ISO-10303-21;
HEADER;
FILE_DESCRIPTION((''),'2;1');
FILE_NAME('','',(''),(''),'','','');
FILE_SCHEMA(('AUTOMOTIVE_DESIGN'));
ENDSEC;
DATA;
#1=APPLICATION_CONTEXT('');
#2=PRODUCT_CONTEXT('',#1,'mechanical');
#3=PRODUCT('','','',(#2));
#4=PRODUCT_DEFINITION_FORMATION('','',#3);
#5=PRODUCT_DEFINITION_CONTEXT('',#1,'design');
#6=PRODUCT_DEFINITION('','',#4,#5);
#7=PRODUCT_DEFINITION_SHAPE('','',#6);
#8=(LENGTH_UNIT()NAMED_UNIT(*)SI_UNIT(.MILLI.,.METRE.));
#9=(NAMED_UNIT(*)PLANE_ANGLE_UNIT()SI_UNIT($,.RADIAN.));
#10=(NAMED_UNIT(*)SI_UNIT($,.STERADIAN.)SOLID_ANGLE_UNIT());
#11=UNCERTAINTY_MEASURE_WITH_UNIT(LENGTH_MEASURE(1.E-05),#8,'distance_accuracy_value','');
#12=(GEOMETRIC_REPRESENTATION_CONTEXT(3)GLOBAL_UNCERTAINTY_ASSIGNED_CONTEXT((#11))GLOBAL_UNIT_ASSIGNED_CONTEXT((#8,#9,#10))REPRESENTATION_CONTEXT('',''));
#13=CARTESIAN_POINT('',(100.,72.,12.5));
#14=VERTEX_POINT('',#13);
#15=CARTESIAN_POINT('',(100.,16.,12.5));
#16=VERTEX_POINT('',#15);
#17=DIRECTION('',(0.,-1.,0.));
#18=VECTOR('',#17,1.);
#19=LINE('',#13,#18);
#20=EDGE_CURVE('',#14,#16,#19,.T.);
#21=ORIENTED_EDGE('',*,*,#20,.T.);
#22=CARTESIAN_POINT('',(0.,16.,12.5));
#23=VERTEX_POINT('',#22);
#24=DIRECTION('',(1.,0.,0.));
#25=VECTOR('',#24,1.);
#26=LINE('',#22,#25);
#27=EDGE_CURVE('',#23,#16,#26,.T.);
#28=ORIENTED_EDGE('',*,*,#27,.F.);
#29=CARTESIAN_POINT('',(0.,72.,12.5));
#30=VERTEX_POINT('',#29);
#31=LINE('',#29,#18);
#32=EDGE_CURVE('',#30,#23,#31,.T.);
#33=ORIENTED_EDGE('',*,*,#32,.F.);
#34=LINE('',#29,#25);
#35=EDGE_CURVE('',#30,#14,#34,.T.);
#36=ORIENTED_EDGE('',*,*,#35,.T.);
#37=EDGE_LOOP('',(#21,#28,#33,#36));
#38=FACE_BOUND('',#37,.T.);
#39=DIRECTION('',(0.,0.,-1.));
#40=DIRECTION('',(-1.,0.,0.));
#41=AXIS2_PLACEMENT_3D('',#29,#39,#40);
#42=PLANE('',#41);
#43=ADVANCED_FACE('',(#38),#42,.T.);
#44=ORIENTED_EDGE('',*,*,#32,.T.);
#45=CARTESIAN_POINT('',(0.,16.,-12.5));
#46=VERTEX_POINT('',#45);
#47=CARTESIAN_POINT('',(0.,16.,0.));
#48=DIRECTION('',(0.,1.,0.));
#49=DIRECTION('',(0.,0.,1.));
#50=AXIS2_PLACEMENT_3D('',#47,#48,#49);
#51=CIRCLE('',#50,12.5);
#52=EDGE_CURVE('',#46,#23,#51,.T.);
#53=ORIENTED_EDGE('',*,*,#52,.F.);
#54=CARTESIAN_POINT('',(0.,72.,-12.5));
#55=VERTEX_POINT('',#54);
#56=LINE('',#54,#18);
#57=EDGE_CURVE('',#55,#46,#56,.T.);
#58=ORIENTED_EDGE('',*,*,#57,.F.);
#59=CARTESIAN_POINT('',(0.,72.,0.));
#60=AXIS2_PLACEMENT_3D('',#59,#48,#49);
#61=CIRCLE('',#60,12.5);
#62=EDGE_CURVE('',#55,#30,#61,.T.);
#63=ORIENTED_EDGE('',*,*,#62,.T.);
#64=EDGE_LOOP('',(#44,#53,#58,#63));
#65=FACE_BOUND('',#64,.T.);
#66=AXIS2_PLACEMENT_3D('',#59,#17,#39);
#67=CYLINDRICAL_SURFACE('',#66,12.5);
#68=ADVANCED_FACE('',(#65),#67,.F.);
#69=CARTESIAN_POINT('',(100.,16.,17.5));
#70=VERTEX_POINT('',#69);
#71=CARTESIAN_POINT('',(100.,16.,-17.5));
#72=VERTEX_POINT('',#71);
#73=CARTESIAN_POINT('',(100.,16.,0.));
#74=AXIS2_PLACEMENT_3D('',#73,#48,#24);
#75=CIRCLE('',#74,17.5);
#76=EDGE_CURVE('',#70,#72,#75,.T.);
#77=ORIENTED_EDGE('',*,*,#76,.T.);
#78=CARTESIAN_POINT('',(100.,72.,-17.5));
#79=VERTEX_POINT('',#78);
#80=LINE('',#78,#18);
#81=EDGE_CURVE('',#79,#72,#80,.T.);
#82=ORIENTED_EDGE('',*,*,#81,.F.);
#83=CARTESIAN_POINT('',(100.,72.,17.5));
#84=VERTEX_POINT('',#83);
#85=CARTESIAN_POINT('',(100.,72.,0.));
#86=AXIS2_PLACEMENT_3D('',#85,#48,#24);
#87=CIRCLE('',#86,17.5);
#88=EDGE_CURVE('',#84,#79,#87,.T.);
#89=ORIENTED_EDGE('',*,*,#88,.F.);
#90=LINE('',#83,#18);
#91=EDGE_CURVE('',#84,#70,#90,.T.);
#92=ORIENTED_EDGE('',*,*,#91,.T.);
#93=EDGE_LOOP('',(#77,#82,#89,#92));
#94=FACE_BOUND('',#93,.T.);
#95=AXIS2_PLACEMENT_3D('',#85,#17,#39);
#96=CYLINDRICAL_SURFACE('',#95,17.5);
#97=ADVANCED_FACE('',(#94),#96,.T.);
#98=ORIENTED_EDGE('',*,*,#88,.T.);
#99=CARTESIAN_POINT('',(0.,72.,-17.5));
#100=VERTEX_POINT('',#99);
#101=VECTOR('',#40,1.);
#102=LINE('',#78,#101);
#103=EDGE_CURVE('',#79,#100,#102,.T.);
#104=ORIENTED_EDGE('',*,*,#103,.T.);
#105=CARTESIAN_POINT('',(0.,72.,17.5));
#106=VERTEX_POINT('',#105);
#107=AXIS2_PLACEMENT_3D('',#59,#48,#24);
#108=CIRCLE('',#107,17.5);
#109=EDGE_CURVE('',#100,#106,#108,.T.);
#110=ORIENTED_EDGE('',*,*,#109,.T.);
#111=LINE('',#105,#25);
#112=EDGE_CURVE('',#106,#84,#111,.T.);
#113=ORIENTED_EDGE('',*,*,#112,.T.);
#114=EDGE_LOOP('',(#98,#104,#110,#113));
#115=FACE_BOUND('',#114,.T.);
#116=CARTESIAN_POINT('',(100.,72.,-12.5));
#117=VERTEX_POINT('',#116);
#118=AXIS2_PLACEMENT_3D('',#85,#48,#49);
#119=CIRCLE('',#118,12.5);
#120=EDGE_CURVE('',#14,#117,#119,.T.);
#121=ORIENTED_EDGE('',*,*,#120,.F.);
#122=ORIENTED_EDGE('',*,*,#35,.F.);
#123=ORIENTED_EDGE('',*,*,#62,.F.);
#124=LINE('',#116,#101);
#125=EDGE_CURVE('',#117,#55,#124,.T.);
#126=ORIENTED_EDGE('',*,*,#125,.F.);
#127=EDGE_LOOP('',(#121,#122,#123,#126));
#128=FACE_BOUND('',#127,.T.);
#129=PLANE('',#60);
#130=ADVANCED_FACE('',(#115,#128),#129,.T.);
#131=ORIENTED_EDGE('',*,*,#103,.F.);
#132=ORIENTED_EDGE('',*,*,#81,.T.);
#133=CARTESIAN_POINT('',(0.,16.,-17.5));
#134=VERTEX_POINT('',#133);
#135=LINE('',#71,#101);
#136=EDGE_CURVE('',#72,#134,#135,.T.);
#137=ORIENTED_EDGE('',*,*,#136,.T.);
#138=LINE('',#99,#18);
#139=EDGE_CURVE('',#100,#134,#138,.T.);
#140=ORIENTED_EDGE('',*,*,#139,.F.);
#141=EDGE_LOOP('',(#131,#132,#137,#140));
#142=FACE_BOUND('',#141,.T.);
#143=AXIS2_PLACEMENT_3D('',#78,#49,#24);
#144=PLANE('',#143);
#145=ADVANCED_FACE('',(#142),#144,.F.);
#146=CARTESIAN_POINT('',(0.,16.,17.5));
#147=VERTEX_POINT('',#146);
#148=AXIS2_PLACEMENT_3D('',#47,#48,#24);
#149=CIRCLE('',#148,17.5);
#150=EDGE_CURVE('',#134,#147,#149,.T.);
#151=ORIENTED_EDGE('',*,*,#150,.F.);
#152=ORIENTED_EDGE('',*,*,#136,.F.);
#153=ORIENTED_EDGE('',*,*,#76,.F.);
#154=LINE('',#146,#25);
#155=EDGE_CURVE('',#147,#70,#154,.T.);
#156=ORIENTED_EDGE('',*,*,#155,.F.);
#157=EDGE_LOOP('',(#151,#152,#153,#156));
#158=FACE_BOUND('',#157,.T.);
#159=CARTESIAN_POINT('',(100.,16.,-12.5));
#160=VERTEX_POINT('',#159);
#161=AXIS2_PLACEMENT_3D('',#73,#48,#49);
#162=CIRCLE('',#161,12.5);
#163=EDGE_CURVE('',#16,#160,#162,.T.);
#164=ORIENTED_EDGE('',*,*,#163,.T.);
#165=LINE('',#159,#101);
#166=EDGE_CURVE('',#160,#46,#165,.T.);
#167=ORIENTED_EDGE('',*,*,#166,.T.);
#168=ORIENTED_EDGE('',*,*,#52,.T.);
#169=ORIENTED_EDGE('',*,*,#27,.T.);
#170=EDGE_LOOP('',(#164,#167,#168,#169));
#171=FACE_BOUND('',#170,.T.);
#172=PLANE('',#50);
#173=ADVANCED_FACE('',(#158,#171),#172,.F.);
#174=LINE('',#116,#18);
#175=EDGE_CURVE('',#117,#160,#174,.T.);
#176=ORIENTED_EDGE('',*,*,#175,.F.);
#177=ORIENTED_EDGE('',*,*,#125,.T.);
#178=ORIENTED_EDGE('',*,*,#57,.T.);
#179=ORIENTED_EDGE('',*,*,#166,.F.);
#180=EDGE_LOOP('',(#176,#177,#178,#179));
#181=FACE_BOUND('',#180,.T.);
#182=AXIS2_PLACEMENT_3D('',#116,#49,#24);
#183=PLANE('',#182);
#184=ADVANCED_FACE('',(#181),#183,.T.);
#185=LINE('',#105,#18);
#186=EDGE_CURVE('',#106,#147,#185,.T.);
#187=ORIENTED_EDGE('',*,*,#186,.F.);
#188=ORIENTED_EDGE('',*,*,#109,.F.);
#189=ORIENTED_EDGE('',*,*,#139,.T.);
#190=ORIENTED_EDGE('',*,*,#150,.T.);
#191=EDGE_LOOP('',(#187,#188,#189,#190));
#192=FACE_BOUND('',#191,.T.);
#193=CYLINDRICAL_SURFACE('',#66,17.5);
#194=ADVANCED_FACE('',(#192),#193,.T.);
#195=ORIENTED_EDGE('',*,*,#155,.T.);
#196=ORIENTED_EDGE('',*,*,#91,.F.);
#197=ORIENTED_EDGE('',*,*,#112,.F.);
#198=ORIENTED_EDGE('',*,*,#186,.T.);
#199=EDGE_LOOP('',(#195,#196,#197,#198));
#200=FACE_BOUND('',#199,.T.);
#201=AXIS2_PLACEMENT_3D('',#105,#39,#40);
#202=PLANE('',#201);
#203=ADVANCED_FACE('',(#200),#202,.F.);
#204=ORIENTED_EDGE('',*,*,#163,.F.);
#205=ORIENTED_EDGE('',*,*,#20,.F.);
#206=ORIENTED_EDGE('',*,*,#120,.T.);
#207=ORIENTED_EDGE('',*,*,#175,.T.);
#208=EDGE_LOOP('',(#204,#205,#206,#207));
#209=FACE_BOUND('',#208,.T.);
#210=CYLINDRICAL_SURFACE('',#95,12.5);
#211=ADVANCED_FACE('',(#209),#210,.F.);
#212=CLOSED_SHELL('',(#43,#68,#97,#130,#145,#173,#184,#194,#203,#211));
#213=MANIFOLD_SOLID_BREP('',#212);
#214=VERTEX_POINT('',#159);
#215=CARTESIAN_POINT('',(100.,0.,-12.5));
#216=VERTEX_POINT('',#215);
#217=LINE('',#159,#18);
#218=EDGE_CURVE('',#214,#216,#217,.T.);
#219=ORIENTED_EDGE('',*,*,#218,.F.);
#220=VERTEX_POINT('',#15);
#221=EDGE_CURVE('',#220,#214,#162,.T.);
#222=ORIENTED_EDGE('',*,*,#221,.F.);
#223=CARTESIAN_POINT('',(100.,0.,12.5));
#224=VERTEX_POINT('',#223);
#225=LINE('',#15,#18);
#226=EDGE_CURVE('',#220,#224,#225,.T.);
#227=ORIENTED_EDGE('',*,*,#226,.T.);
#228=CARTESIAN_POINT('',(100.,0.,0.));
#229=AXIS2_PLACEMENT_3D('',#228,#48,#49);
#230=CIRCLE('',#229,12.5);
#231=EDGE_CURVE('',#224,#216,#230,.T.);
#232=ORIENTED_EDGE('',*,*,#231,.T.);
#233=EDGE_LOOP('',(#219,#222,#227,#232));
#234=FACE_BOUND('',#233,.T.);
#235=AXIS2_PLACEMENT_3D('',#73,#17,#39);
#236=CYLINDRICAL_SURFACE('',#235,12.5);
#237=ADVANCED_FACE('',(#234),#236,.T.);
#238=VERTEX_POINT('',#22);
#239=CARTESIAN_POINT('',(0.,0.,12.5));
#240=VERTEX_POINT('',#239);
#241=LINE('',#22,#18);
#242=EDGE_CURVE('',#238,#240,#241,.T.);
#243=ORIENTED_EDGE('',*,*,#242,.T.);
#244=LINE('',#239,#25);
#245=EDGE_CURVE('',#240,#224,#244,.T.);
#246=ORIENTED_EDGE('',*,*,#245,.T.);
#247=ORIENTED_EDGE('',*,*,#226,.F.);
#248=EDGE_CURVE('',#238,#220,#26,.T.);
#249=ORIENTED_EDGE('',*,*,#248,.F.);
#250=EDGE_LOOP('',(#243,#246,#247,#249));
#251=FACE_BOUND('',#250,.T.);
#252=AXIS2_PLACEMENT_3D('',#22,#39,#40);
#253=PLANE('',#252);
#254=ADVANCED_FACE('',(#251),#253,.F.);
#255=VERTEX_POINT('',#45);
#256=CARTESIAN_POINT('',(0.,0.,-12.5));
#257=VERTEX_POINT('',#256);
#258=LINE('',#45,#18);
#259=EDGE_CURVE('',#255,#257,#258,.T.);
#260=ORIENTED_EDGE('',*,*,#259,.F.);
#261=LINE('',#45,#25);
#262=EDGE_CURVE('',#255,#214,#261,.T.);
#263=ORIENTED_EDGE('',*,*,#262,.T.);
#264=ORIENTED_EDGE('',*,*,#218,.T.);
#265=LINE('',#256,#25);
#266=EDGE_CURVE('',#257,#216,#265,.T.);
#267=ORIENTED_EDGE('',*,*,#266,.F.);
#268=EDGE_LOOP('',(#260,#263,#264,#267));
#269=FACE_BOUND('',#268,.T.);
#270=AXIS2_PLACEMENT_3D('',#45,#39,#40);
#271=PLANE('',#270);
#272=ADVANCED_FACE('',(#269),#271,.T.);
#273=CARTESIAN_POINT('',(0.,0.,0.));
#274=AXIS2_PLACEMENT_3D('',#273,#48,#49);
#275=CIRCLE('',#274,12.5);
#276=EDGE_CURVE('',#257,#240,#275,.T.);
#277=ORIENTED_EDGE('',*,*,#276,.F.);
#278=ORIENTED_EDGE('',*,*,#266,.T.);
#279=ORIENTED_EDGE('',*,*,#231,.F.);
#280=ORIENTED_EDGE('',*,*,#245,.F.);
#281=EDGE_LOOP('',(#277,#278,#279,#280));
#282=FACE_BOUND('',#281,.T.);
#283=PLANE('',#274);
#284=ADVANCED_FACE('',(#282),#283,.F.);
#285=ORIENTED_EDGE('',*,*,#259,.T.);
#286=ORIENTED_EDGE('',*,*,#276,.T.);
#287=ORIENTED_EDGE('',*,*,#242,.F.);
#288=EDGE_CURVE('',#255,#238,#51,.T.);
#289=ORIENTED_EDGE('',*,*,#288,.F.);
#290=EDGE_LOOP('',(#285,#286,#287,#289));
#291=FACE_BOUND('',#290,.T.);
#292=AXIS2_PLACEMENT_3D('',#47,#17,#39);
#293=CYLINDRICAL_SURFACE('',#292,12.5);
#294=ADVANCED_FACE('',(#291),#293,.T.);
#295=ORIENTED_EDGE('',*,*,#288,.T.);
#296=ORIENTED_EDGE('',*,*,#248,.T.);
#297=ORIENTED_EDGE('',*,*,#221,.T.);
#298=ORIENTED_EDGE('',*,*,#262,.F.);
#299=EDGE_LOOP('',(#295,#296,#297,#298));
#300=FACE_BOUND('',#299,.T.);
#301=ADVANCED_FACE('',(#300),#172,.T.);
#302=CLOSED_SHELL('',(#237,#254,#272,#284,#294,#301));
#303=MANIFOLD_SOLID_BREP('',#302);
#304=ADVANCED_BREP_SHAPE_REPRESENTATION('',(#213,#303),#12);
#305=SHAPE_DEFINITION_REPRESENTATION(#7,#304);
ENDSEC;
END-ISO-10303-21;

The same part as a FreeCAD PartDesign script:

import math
import FreeCAD as App
import Part
import Sketcher

doc = App.newDocument("Part")
body = doc.addObject("PartDesign::Body", "Body")

# Sketch on XZ plane
sketch1 = doc.addObject("Sketcher::SketchObject", "Sketch")
body.addObject(sketch1)
sketch1.AttachmentSupport = (doc.XZ_Plane, [""])
sketch1.MapMode = "FlatFace"
sketch1.addGeometry(Part.LineSegment(App.Vector(100, -12, 0), App.Vector(0, -12, 0)), False)
sketch1.addGeometry(Part.ArcOfCircle(Part.Circle(App.Vector(0, 0, 0), App.Vector(0, 0, 1), 12), math.radians(90), math.radians(270)), False)
sketch1.addGeometry(Part.LineSegment(App.Vector(0, 12, 0), App.Vector(100, 12, 0)), False)
sketch1.addGeometry(Part.ArcOfCircle(Part.Circle(App.Vector(100, 0, 0), App.Vector(0, 0, 1), 12), math.radians(-90), math.radians(90)), False)
sketch1.addConstraint(Sketcher.Constraint("Tangent", 0, 2, 1, 2))
sketch1.addConstraint(Sketcher.Constraint("Tangent", 1, 1, 2, 1))
sketch1.addConstraint(Sketcher.Constraint("Tangent", 2, 2, 3, 2))
sketch1.addConstraint(Sketcher.Constraint("Tangent", 3, 1, 0, 1))
sketch1.addConstraint(Sketcher.Constraint("Horizontal", 0))
sketch1.addConstraint(Sketcher.Constraint("Horizontal", 2))
sketch1.addConstraint(Sketcher.Constraint("Coincident", 1, 3, -1, 1))
sketch1.addConstraint(Sketcher.Constraint("Radius", 1, 12.5))
sketch1.addConstraint(Sketcher.Constraint("DistanceX", 0, 2, 0, 1, 100.0))
pad1 = doc.addObject("PartDesign::Pad", "Pad")
body.addObject(pad1)
pad1.Profile = sketch1
pad1.Length = 16
pad1.Reversed = True
body2 = doc.addObject("PartDesign::Body", "Body001")

# Sketch on XZ plane
sketch2 = doc.addObject("Sketcher::SketchObject", "Sketch001")
body2.addObject(sketch2)
sketch2.AttachmentSupport = (doc.getObject("XZ_Plane001"), [""])
sketch2.MapMode = "FlatFace"
sketch2.AttachmentOffset = App.Placement(App.Vector(0, 0, -16), App.Rotation())
sketch2.addGeometry(Part.LineSegment(App.Vector(100, -18, 0), App.Vector(0, -18, 0)), False)
sketch2.addGeometry(Part.ArcOfCircle(Part.Circle(App.Vector(0, 0, 0), App.Vector(0, 0, 1), 18), math.radians(90), math.radians(270)), False)
sketch2.addGeometry(Part.LineSegment(App.Vector(0, 18, 0), App.Vector(100, 18, 0)), False)
sketch2.addGeometry(Part.ArcOfCircle(Part.Circle(App.Vector(100, 0, 0), App.Vector(0, 0, 1), 18), math.radians(-90), math.radians(90)), False)
sketch2.addGeometry(Part.LineSegment(App.Vector(0, -12, 0), App.Vector(100, -12, 0)), False)
sketch2.addGeometry(Part.ArcOfCircle(Part.Circle(App.Vector(100, 0, 0), App.Vector(0, 0, 1), 12), math.radians(-90), math.radians(90)), False)
sketch2.addGeometry(Part.LineSegment(App.Vector(100, 12, 0), App.Vector(0, 12, 0)), False)
sketch2.addGeometry(Part.ArcOfCircle(Part.Circle(App.Vector(0, 0, 0), App.Vector(0, 0, 1), 12), math.radians(90), math.radians(270)), False)
sketch2.addConstraint(Sketcher.Constraint("Tangent", 0, 2, 1, 2))
sketch2.addConstraint(Sketcher.Constraint("Tangent", 1, 1, 2, 1))
sketch2.addConstraint(Sketcher.Constraint("Tangent", 2, 2, 3, 2))
sketch2.addConstraint(Sketcher.Constraint("Tangent", 3, 1, 0, 1))
sketch2.addConstraint(Sketcher.Constraint("Tangent", 4, 2, 5, 1))
sketch2.addConstraint(Sketcher.Constraint("Tangent", 5, 2, 6, 1))
sketch2.addConstraint(Sketcher.Constraint("Tangent", 6, 2, 7, 1))
sketch2.addConstraint(Sketcher.Constraint("Tangent", 7, 2, 4, 1))
sketch2.addConstraint(Sketcher.Constraint("Horizontal", 0))
sketch2.addConstraint(Sketcher.Constraint("Horizontal", 2))
sketch2.addConstraint(Sketcher.Constraint("Horizontal", 4))
sketch2.addConstraint(Sketcher.Constraint("Horizontal", 6))
sketch2.addConstraint(Sketcher.Constraint("Coincident", 1, 3, -1, 1))
sketch2.addConstraint(Sketcher.Constraint("Coincident", 7, 3, -1, 1))
sketch2.addConstraint(Sketcher.Constraint("Vertical", 5, 3, 2, 2))
sketch2.addConstraint(Sketcher.Constraint("Radius", 1, 17.5))
sketch2.addConstraint(Sketcher.Constraint("Radius", 5, 12.5))
sketch2.addConstraint(Sketcher.Constraint("DistanceX", 0, 2, 0, 1, 100.0))
pad2 = doc.addObject("PartDesign::Pad", "Pad001")
body2.addObject(pad2)
pad2.Profile = sketch2
pad2.Length = 56
pad2.Reversed = True

doc.recompute()
